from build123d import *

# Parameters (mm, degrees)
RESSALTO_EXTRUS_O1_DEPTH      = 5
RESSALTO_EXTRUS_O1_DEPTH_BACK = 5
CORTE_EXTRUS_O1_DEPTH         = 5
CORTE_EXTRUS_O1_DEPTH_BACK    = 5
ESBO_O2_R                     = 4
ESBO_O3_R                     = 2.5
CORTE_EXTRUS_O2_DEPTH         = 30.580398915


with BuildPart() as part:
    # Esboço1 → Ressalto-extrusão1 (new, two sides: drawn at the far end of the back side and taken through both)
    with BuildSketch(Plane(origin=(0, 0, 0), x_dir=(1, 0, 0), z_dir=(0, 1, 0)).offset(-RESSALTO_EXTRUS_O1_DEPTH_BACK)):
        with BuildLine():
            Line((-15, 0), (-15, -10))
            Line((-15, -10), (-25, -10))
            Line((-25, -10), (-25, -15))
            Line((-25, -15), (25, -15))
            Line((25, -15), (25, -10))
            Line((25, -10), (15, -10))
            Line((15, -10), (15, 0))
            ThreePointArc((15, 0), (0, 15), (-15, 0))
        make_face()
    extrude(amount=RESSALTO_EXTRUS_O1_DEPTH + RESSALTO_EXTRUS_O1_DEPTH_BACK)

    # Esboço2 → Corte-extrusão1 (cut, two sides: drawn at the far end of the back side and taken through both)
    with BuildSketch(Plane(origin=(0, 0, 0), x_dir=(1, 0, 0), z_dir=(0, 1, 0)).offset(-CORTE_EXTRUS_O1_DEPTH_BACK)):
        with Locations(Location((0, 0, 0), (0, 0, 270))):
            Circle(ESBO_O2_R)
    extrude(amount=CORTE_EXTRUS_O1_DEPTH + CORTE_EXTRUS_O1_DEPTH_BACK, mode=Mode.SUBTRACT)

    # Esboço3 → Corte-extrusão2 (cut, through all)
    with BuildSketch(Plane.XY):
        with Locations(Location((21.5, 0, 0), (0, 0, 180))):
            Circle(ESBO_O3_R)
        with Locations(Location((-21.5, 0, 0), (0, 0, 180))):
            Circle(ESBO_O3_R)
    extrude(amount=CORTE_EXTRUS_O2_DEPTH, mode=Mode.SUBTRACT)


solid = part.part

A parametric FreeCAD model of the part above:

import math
import FreeCAD as App
import Part
import Sketcher

V = App.Vector
Q = App.Units.Quantity

doc = App.newDocument("Part")
body = doc.addObject("PartDesign::Body", "Body")

# Sketch on XZ plane
sketch1 = doc.addObject("Sketcher::SketchObject", "Sketch")
body.addObject(sketch1)
sketch1.AttachmentSupport = (doc.XZ_Plane, [""])
sketch1.MapMode = "FlatFace"
sketch1.addGeometry(Part.LineSegment(V(-15, 0, 0), V(-15, 10, 0)), False)
sketch1.addGeometry(Part.LineSegment(V(-15, 10, 0), V(-25, 10, 0)), False)
sketch1.addGeometry(Part.LineSegment(V(-25, 10, 0), V(-25, 15, 0)), False)
sketch1.addGeometry(Part.LineSegment(V(-25, 15, 0), V(25, 15, 0)), False)
sketch1.addGeometry(Part.LineSegment(V(25, 15, 0), V(25, 10, 0)), False)
sketch1.addGeometry(Part.LineSegment(V(25, 10, 0), V(15, 10, 0)), False)
sketch1.addGeometry(Part.LineSegment(V(15, 10, 0), V(15, 0, 0)), False)
sketch1.addGeometry(Part.ArcOfCircle(Part.Circle(V(0, 0, 0), V(0, 0, 1), 15), math.radians(180), math.radians(360)), False)
sketch1.addConstraint(Sketcher.Constraint("Coincident", 0, 2, 1, 1))
sketch1.addConstraint(Sketcher.Constraint("Coincident", 1, 2, 2, 1))
sketch1.addConstraint(Sketcher.Constraint("Coincident", 2, 2, 3, 1))
sketch1.addConstraint(Sketcher.Constraint("Coincident", 3, 2, 4, 1))
sketch1.addConstraint(Sketcher.Constraint("Coincident", 4, 2, 5, 1))
sketch1.addConstraint(Sketcher.Constraint("Coincident", 5, 2, 6, 1))
sketch1.addConstraint(Sketcher.Constraint("Tangent", 6, 2, 7, 2))
sketch1.addConstraint(Sketcher.Constraint("Tangent", 7, 1, 0, 1))
sketch1.addConstraint(Sketcher.Constraint("Vertical", 0))
sketch1.addConstraint(Sketcher.Constraint("Horizontal", 1))
sketch1.addConstraint(Sketcher.Constraint("Vertical", 2))
sketch1.addConstraint(Sketcher.Constraint("Horizontal", 3))
sketch1.addConstraint(Sketcher.Constraint("Vertical", 4))
sketch1.addConstraint(Sketcher.Constraint("Horizontal", 5))
sketch1.addConstraint(Sketcher.Constraint("Vertical", 6))
sketch1.addConstraint(Sketcher.Constraint("Coincident", 7, 3, -1, 1))
sketch1.addConstraint(Sketcher.Constraint("Symmetric", 1, 2, 4, 2, -2))
sketch1.addConstraint(Sketcher.Constraint("Equal", 5, 0))
sketch1.addConstraint(Sketcher.Constraint("Radius", 7, Q("15 mm")))
sketch1.addConstraint(Sketcher.Constraint("DistanceX", 1, 2, 1, 1, Q("10 mm")))
sketch1.addConstraint(Sketcher.Constraint("DistanceY", 2, 1, 2, 2, Q("5 mm")))
pad1 = doc.addObject("PartDesign::Pad", "Pad")
body.addObject(pad1)
pad1.Profile = sketch1
pad1.Type = "TwoLengths"
pad1.Length = 5
pad1.Length2 = 5
pad1.Reversed = True

# Sketch on XZ plane
sketch2 = doc.addObject("Sketcher::SketchObject", "Sketch001")
body.addObject(sketch2)
sketch2.AttachmentSupport = (doc.XZ_Plane, [""])
sketch2.MapMode = "FlatFace"
sketch2.addGeometry(Part.Circle(V(0, 0, 0), V(0, 0, 1), 4), False)
sketch2.addConstraint(Sketcher.Constraint("Coincident", 0, 3, -1, 1))
sketch2.addConstraint(Sketcher.Constraint("Diameter", 0, Q("8 mm")))
pocket1 = doc.addObject("PartDesign::Pocket", "Pocket")
body.addObject(pocket1)
pocket1.Profile = sketch2
pocket1.Type = "ThroughAll"
pocket1.Midplane = True

# Sketch on XY plane
sketch3 = doc.addObject("Sketcher::SketchObject", "Sketch002")
body.addObject(sketch3)
sketch3.AttachmentSupport = (doc.XY_Plane, [""])
sketch3.MapMode = "FlatFace"
sketch3.addGeometry(Part.Circle(V(21.5, 0, 0), V(0, 0, 1), 2.5), False)
sketch3.addGeometry(Part.Circle(V(-21.5, 0, 0), V(0, 0, 1), 2.5), False)
sketch3.addConstraint(Sketcher.Constraint("Equal", 0, 1))
sketch3.addConstraint(Sketcher.Constraint("Symmetric", 0, 3, 1, 3, -1, 1))
sketch3.addConstraint(Sketcher.Constraint("PointOnObject", 0, 3, -1))
sketch3.addConstraint(Sketcher.Constraint("Diameter", 0, Q("5 mm")))
sketch3.addConstraint(Sketcher.Constraint("DistanceX", 1, 3, 0, 3, Q("43 mm")))
pocket2 = doc.addObject("PartDesign::Pocket", "Pocket001")
body.addObject(pocket2)
pocket2.Profile = sketch3
pocket2.Type = "ThroughAll"
pocket2.Reversed = True

doc.recompute()
